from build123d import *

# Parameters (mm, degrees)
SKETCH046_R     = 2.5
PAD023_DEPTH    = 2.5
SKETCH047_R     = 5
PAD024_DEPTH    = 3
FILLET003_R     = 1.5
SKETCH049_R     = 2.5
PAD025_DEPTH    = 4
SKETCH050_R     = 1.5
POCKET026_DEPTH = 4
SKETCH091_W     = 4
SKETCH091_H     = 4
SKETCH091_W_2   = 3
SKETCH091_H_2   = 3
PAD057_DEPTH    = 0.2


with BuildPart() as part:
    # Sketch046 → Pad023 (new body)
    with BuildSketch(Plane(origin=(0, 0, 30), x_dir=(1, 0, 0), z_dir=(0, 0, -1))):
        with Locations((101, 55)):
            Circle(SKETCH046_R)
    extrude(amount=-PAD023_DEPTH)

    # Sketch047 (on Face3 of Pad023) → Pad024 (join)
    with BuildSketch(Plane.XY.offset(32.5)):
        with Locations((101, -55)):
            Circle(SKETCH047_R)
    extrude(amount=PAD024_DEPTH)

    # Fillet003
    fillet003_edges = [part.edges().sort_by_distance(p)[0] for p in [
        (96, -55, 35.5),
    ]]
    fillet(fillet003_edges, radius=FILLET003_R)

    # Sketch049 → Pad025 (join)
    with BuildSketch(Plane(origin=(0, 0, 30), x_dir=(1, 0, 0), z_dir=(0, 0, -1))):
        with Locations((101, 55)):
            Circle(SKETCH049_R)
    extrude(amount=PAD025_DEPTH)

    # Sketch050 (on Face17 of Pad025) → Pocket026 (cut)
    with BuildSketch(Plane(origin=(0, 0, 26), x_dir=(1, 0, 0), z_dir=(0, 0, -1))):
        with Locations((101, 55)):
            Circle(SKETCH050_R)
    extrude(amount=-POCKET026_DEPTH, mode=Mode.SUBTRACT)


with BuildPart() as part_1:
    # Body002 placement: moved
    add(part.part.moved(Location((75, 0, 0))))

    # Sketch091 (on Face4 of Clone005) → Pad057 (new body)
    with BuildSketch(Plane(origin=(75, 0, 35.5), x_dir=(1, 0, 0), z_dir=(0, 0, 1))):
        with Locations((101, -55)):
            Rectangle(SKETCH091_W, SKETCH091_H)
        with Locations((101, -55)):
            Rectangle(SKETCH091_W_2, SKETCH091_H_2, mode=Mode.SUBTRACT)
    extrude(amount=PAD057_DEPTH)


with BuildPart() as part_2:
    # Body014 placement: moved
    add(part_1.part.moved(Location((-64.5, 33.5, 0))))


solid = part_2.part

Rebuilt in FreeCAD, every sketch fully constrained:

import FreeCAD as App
import Part
import Sketcher
from FreeCAD import Vector


def edges_at(feature, points):
    """Names of the edges that pass closest to the given points."""
    edges = feature.Shape.Edges
    near = lambda p: min(range(len(edges)), key=lambda i: edges[i].distToShape(Part.Vertex(*p))[0])
    return sorted({f"Edge{near(p) + 1}" for p in points})


def add_polygon(sketch, points):
    """Adds a closed chain of lines whose ends are joined by coincident constraints."""
    first, n = sketch.GeometryCount, len(points)
    for a, b in zip(points, points[1:] + points[:1]):
        sketch.addGeometry(Part.LineSegment(App.Vector(*a, 0), App.Vector(*b, 0)), False)
    for i in range(n):
        sketch.addConstraint(Sketcher.Constraint("Coincident", first + i, 2, first + (i + 1) % n, 1))

doc = App.newDocument("Part")
params = doc.addObject("Spreadsheet::Sheet", "Params")
for row, (alias, value) in enumerate([
    ("sketch1_diameter", "5 mm"),
    ("pad1_length", "2.5 mm"),
    ("sketch2_diameter", "10 mm"),
    ("pad2_length", "3 mm"),
    ("fillet_radius", "1.5 mm"),
    ("sketch3_diameter", "5 mm"),
    ("pad3_length", "4 mm"),
    ("sketch4_diameter", "3 mm"),
    ("pocket1_length", "4 mm"),
    ("sketch5_width", "4 mm"),
    ("sketch5_width2", "3 mm"),
    ("pad4_length", "0.2 mm"),
], start=1):
    params.set(f"A{row}", alias)
    params.set(f"B{row}", "=" + value)
    params.setAlias(f"B{row}", alias)

body = doc.addObject("PartDesign::Body", "Body")

# Sketch on XY plane
sketch1 = doc.addObject("Sketcher::SketchObject", "Sketch")
body.addObject(sketch1)
sketch1.AttachmentSupport = (doc.XY_Plane, [""])
sketch1.MapMode = "FlatFace"
sketch1.AttachmentOffset = App.Placement(Vector(0, 0, 30), App.Rotation())
sketch1.addGeometry(Part.Circle(Vector(101, -55, 0), Vector(0, 0, 1), 2.5), False)
sketch1.addConstraint(Sketcher.Constraint("Diameter", 0, 5.0))
sketch1.addConstraint(Sketcher.Constraint("DistanceX", -1, 1, 0, 3, 101.0))
sketch1.addConstraint(Sketcher.Constraint("DistanceY", 0, 3, -1, 1, 55.0))
sketch1.setExpression("Constraints[0]", "Params.sketch1_diameter")
pad1 = doc.addObject("PartDesign::Pad", "Pad")
body.addObject(pad1)
pad1.Profile = sketch1
pad1.setExpression("Length", "Params.pad1_length")

# Sketch on XY plane
sketch2 = doc.addObject("Sketcher::SketchObject", "Sketch001")
body.addObject(sketch2)
sketch2.AttachmentSupport = (doc.XY_Plane, [""])
sketch2.MapMode = "FlatFace"
sketch2.AttachmentOffset = App.Placement(Vector(0, 0, 32.5), App.Rotation())
sketch2.addGeometry(Part.Circle(Vector(101, -55, 0), Vector(0, 0, 1), 5), False)
sketch2.addConstraint(Sketcher.Constraint("Diameter", 0, 10.0))
sketch2.addConstraint(Sketcher.Constraint("DistanceX", -1, 1, 0, 3, 101.0))
sketch2.addConstraint(Sketcher.Constraint("DistanceY", 0, 3, -1, 1, 55.0))
sketch2.setExpression("Constraints[0]", "Params.sketch2_diameter")
pad2 = doc.addObject("PartDesign::Pad", "Pad001")
body.addObject(pad2)
pad2.Profile = sketch2
pad2.setExpression("Length", "Params.pad2_length")
doc.recompute()

fillet = doc.addObject("PartDesign::Fillet", "Fillet")
body.addObject(fillet)
fillet.Base = (pad2, edges_at(pad2, [(96, -55, 35.5)]))
fillet.setExpression("Radius", "Params.fillet_radius")

# Sketch on XY plane
sketch3 = doc.addObject("Sketcher::SketchObject", "Sketch002")
body.addObject(sketch3)
sketch3.AttachmentSupport = (doc.XY_Plane, [""])
sketch3.MapMode = "FlatFace"
sketch3.AttachmentOffset = App.Placement(Vector(0, 0, 30), App.Rotation())
sketch3.addGeometry(Part.Circle(Vector(101, -55, 0), Vector(0, 0, 1), 2.5), False)
sketch3.addConstraint(Sketcher.Constraint("Diameter", 0, 5.0))
sketch3.addConstraint(Sketcher.Constraint("DistanceX", -1, 1, 0, 3, 101.0))
sketch3.addConstraint(Sketcher.Constraint("DistanceY", 0, 3, -1, 1, 55.0))
sketch3.setExpression("Constraints[0]", "Params.sketch3_diameter")
pad3 = doc.addObject("PartDesign::Pad", "Pad002")
body.addObject(pad3)
pad3.Profile = sketch3
pad3.setExpression("Length", "Params.pad3_length")
pad3.Reversed = True

# Sketch on XY plane
sketch4 = doc.addObject("Sketcher::SketchObject", "Sketch003")
body.addObject(sketch4)
sketch4.AttachmentSupport = (doc.XY_Plane, [""])
sketch4.MapMode = "FlatFace"
sketch4.AttachmentOffset = App.Placement(Vector(0, 0, 26), App.Rotation())
sketch4.addGeometry(Part.Circle(Vector(101, -55, 0), Vector(0, 0, 1), 1.5), False)
sketch4.addConstraint(Sketcher.Constraint("Diameter", 0, 3.0))
sketch4.addConstraint(Sketcher.Constraint("DistanceX", -1, 1, 0, 3, 101.0))
sketch4.addConstraint(Sketcher.Constraint("DistanceY", 0, 3, -1, 1, 55.0))
sketch4.setExpression("Constraints[0]", "Params.sketch4_diameter")
pocket1 = doc.addObject("PartDesign::Pocket", "Pocket")
body.addObject(pocket1)
pocket1.Profile = sketch4
pocket1.setExpression("Length", "Params.pocket1_length")
pocket1.Reversed = True
body2 = doc.addObject("PartDesign::Body", "Body001")
doc.recompute()

body.Placement = App.Placement(Vector(75, 0, 0), App.Rotation(Vector(0, 0, 1), 0))
boolean = doc.addObject("PartDesign::Boolean", "Boolean")
body2.addObject(boolean)
boolean.Type = "Fuse"
boolean.addObjects([body])

# Sketch on XY plane
sketch5 = doc.addObject("Sketcher::SketchObject", "Sketch004")
body2.addObject(sketch5)
sketch5.AttachmentSupport = (doc.getObject("XY_Plane001"), [""])
sketch5.MapMode = "FlatFace"
sketch5.AttachmentOffset = App.Placement(Vector(0, 0, 35.5), App.Rotation())
add_polygon(sketch5, [(174, -53), (174, -57), (178, -57), (178, -53)])  # lines 0-3
add_polygon(sketch5, [(177.5, -56.5), (174.5, -56.5), (174.5, -53.5), (177.5, -53.5)])  # lines 4-7
sketch5.addConstraint(Sketcher.Constraint("Vertical", 0))
sketch5.addConstraint(Sketcher.Constraint("Horizontal", 1))
sketch5.addConstraint(Sketcher.Constraint("Vertical", 2))
sketch5.addConstraint(Sketcher.Constraint("Horizontal", 3))
sketch5.addConstraint(Sketcher.Constraint("Horizontal", 4))
sketch5.addConstraint(Sketcher.Constraint("Vertical", 5))
sketch5.addConstraint(Sketcher.Constraint("Horizontal", 6))
sketch5.addConstraint(Sketcher.Constraint("Vertical", 7))
sketch5.addConstraint(Sketcher.Constraint("Equal", 3, 0))
sketch5.addConstraint(Sketcher.Constraint("Equal", 6, 5))
sketch5.addConstraint(Sketcher.Constraint("DistanceX", 1, 1, 1, 2, 4.0))
sketch5.addConstraint(Sketcher.Constraint("DistanceX", 4, 2, 4, 1, 3.0))
sketch5.addConstraint(Sketcher.Constraint("DistanceX", -1, 1, 0, 2, 174.0))
sketch5.addConstraint(Sketcher.Constraint("DistanceY", 0, 2, -1, 1, 57.0))
sketch5.addConstraint(Sketcher.Constraint("DistanceX", -1, 1, 4, 2, 174.5))
sketch5.addConstraint(Sketcher.Constraint("DistanceY", 4, 2, -1, 1, 56.5))
sketch5.setExpression("Constraints[18]", "Params.sketch5_width")
sketch5.setExpression("Constraints[19]", "Params.sketch5_width2")
pad4 = doc.addObject("PartDesign::Pad", "Pad003")
body2.addObject(pad4)
pad4.Profile = sketch5
pad4.setExpression("Length", "Params.pad4_length")
body3 = doc.addObject("PartDesign::Body", "Body002")
doc.recompute()

body2.Placement = App.Placement(Vector(-64.5, 33.5, 0), App.Rotation(Vector(0, 0, 1), 0))
boolean2 = doc.addObject("PartDesign::Boolean", "Boolean001")
body3.addObject(boolean2)
boolean2.Type = "Fuse"
boolean2.addObjects([body2])

doc.recompute()
